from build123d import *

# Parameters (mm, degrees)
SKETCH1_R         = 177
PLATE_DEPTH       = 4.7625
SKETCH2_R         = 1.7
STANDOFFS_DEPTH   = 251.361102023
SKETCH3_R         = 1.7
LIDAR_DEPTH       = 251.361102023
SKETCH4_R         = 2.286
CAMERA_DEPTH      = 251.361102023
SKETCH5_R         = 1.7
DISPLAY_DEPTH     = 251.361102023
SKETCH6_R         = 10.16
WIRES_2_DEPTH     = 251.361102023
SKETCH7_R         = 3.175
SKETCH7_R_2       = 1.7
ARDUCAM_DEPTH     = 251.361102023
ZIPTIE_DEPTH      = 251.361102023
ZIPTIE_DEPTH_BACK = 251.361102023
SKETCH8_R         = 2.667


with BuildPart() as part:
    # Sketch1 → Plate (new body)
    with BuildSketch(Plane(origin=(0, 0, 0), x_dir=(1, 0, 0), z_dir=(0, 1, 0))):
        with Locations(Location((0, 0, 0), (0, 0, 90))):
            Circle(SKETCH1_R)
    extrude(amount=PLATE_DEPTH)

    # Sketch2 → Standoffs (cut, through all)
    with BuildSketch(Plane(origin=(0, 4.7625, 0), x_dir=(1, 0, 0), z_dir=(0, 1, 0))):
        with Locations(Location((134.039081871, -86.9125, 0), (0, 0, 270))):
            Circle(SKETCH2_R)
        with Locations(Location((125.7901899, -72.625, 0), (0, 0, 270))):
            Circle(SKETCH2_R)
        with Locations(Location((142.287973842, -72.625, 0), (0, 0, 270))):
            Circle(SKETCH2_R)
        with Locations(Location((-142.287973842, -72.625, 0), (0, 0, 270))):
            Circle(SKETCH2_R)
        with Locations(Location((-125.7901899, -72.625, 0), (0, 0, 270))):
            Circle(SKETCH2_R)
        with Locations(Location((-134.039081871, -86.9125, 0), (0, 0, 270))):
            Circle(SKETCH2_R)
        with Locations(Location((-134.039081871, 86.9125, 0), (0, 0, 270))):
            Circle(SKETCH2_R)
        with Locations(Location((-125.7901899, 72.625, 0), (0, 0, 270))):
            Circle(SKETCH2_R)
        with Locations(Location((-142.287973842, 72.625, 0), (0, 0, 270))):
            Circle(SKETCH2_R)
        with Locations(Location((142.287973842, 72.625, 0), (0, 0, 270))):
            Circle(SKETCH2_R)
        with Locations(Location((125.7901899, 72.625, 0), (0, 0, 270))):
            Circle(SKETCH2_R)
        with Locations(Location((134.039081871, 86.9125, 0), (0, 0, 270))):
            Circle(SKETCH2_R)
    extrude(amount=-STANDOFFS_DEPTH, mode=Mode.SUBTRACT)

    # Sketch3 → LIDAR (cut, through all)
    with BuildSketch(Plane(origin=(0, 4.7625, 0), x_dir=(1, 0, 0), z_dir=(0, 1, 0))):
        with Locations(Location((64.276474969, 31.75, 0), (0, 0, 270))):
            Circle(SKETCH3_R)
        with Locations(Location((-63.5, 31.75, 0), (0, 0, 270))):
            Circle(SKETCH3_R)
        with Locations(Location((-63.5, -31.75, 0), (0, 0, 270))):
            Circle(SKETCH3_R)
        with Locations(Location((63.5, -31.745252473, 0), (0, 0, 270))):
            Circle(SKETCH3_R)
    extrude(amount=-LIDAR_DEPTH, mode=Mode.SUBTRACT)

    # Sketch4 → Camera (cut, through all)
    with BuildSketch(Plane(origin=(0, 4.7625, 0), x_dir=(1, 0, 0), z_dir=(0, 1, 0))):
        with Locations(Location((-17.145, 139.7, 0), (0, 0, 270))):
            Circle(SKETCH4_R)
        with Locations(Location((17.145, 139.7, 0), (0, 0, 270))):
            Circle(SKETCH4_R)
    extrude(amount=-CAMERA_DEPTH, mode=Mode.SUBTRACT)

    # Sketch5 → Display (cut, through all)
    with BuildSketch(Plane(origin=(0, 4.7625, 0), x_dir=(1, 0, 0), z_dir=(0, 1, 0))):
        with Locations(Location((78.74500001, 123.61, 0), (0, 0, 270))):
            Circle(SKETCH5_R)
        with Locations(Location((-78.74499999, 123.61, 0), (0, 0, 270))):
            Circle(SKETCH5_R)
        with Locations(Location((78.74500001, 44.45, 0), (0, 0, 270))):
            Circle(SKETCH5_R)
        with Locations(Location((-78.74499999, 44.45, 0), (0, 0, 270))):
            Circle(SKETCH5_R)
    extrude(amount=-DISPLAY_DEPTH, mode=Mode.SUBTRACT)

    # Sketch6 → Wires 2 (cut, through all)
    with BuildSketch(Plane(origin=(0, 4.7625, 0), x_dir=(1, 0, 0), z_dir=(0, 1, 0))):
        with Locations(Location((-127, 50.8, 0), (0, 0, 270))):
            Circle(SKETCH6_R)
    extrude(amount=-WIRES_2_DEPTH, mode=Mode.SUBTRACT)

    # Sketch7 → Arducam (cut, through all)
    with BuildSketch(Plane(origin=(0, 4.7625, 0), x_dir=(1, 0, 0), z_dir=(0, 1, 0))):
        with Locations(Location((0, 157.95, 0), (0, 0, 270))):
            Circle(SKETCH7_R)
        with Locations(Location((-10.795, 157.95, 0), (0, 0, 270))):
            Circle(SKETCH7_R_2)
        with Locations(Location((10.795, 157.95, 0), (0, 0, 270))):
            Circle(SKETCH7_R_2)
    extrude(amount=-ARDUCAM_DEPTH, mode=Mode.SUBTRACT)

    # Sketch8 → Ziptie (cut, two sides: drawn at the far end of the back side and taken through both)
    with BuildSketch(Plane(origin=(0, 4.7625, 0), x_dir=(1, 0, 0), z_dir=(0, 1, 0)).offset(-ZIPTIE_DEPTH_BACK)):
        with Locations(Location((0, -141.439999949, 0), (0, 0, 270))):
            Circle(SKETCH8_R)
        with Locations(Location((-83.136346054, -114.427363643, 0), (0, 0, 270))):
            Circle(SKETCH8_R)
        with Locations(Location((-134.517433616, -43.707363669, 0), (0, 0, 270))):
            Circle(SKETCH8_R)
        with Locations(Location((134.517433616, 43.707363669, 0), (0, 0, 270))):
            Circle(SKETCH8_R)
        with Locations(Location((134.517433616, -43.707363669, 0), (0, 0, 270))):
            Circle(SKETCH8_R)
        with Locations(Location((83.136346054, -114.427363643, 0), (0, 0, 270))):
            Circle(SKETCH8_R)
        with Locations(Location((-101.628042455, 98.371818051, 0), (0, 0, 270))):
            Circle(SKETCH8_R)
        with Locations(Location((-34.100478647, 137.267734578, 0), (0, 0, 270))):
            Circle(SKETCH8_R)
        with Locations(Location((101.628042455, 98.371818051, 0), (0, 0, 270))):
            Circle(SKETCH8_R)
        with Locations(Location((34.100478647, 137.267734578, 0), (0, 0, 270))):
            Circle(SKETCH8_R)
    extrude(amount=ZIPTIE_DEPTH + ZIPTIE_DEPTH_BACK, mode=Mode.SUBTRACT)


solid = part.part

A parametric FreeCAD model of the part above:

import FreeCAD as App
import Part
import Sketcher
Q = App.Units.Quantity

doc = App.newDocument("Part")
body = doc.addObject("PartDesign::Body", "Body")

# Sketch on XZ plane
sketch1 = doc.addObject("Sketcher::SketchObject", "Sketch")
body.addObject(sketch1)
sketch1.AttachmentSupport = (doc.XZ_Plane, [""])
sketch1.MapMode = "FlatFace"
sketch1.addGeometry(Part.Circle(App.Vector(0, 0, 0), App.Vector(0, 0, 1), 177), False)
sketch1.addConstraint([
    Sketcher.Constraint("Coincident", 0, 3, -1, 1),
    Sketcher.Constraint("Diameter", 0, 354.0),
])
pad1 = doc.addObject("PartDesign::Pad", "Pad")
body.addObject(pad1)
pad1.Profile = sketch1
pad1.Length = Q("0.1875 in")
pad1.Reversed = True

# Sketch on XZ plane
sketch2 = doc.addObject("Sketcher::SketchObject", "Sketch001")
body.addObject(sketch2)
sketch2.AttachmentSupport = (doc.XZ_Plane, [""])
sketch2.MapMode = "FlatFace"
sketch2.AttachmentOffset = App.Placement(App.Vector(0, 0, -0.1875 * 25.4), App.Rotation())
sketch2.addGeometry([
    Part.Circle(App.Vector(134, 86.9, 0), App.Vector(0, 0, 1), 1.7),  # 0
    Part.Circle(App.Vector(125.8, 72.6, 0), App.Vector(0, 0, 1), 1.7),  # 1
    Part.Circle(App.Vector(142.3, 72.6, 0), App.Vector(0, 0, 1), 1.7),  # 2
    Part.Circle(App.Vector(-142.3, 72.6, 0), App.Vector(0, 0, 1), 1.7),  # 3
    Part.Circle(App.Vector(-125.8, 72.6, 0), App.Vector(0, 0, 1), 1.7),  # 4
    Part.Circle(App.Vector(-134, 86.9, 0), App.Vector(0, 0, 1), 1.7),  # 5
    Part.Circle(App.Vector(-134, -86.9, 0), App.Vector(0, 0, 1), 1.7),  # 6
    Part.Circle(App.Vector(-125.8, -72.6, 0), App.Vector(0, 0, 1), 1.7),  # 7
    Part.Circle(App.Vector(-142.3, -72.6, 0), App.Vector(0, 0, 1), 1.7),  # 8
    Part.Circle(App.Vector(142.3, -72.6, 0), App.Vector(0, 0, 1), 1.7),  # 9
    Part.Circle(App.Vector(125.8, -72.6, 0), App.Vector(0, 0, 1), 1.7),  # 10
    Part.Circle(App.Vector(134, -86.9, 0), App.Vector(0, 0, 1), 1.7),  # 11
], False)
sketch2.addConstraint([
    Sketcher.Constraint("Equal", 0, 1),
    Sketcher.Constraint("Equal", 1, 2),
    Sketcher.Constraint("Equal", 2, 3),
    Sketcher.Constraint("Equal", 3, 4),
    Sketcher.Constraint("Equal", 4, 5),
    Sketcher.Constraint("Equal", 5, 6),
    Sketcher.Constraint("Equal", 6, 7),
    Sketcher.Constraint("Equal", 7, 8),
    Sketcher.Constraint("Equal", 8, 9),
    Sketcher.Constraint("Equal", 9, 10),
    Sketcher.Constraint("Equal", 10, 11),
    Sketcher.Constraint("Symmetric", 0, 3, 6, 3, -1, 1),
    Sketcher.Constraint("Symmetric", 1, 3, 7, 3, -1, 1),
    Sketcher.Constraint("Symmetric", 2, 3, 8, 3, -1, 1),
    Sketcher.Constraint("Symmetric", 3, 3, 9, 3, -1, 1),
    Sketcher.Constraint("Symmetric", 4, 3, 10, 3, -1, 1),
    Sketcher.Constraint("Symmetric", 5, 3, 11, 3, -1, 1),
    Sketcher.Constraint("Symmetric", 2, 3, 3, 3, -2),
    Sketcher.Constraint("Symmetric", 1, 3, 4, 3, -2),
    Sketcher.Constraint("Symmetric", 0, 3, 5, 3, -2),
    Sketcher.Constraint("Horizontal", 1, 3, 2, 3),
    Sketcher.Constraint("Diameter", 0, 3.4),
    Sketcher.Constraint("DistanceY", 1, 3, 0, 3, Q("0.5625 in")),
    Sketcher.Constraint("DistanceY", -1, 1, 0, 3, 86.9125),
    Sketcher.Constraint("DistanceX", -1, 1, 0, 3, 134.039082),
    Sketcher.Constraint("DistanceX", -1, 1, 1, 3, 125.79019),
    Sketcher.Constraint("DistanceX", 0, 3, 2, 3, 8.248892),
])
pocket1 = doc.addObject("PartDesign::Pocket", "Pocket")
body.addObject(pocket1)
pocket1.Profile = sketch2
pocket1.Type = "ThroughAll"
pocket1.Reversed = True

# Sketch on XZ plane
sketch3 = doc.addObject("Sketcher::SketchObject", "Sketch002")
body.addObject(sketch3)
sketch3.AttachmentSupport = (doc.XZ_Plane, [""])
sketch3.MapMode = "FlatFace"
sketch3.AttachmentOffset = App.Placement(App.Vector(0, 0, -0.1875 * 25.4), App.Rotation())
sketch3.addGeometry([
    Part.Circle(App.Vector(64.3, -31.8, 0), App.Vector(0, 0, 1), 1.7),
    Part.Circle(App.Vector(-63.5, -31.8, 0), App.Vector(0, 0, 1), 1.7),
    Part.Circle(App.Vector(-63.5, 31.8, 0), App.Vector(0, 0, 1), 1.7),
    Part.Circle(App.Vector(63.5, 31.7, 0), App.Vector(0, 0, 1), 1.7),
], False)
sketch3.addConstraint([
    Sketcher.Constraint("Equal", 0, 1),
    Sketcher.Constraint("Equal", 1, 2),
    Sketcher.Constraint("Equal", 2, 3),
    Sketcher.Constraint("Symmetric", 1, 3, 2, 3, -1),
    Sketcher.Constraint("Horizontal", 0, 3, 1, 3),
    Sketcher.Constraint("DistanceX", 2, 3, 3, 3, Q("5 in")),
    Sketcher.Constraint("DistanceX", 1, 3, -1, 1, Q("2.5 in")),
    Sketcher.Constraint("DistanceY", 1, 3, 2, 3, Q("2.5 in")),
    Sketcher.Constraint("Diameter", 0, 3.4),
    Sketcher.Constraint("DistanceX", -1, 1, 0, 3, 64.276475),
    Sketcher.Constraint("DistanceY", -1, 1, 3, 3, 31.745252),
])
pocket2 = doc.addObject("PartDesign::Pocket", "Pocket001")
body.addObject(pocket2)
pocket2.Profile = sketch3
pocket2.Type = "ThroughAll"
pocket2.Reversed = True

# Sketch on XZ plane
sketch4 = doc.addObject("Sketcher::SketchObject", "Sketch003")
body.addObject(sketch4)
sketch4.AttachmentSupport = (doc.XZ_Plane, [""])
sketch4.MapMode = "FlatFace"
sketch4.AttachmentOffset = App.Placement(App.Vector(0, 0, -0.1875 * 25.4), App.Rotation())
sketch4.addGeometry([
    Part.Circle(App.Vector(-17.1, -139.7, 0), App.Vector(0, 0, 1), 2.3),
    Part.Circle(App.Vector(17.1, -139.7, 0), App.Vector(0, 0, 1), 2.3),
], False)
sketch4.addConstraint([
    Sketcher.Constraint("Equal", 0, 1),
    Sketcher.Constraint("Symmetric", 0, 3, 1, 3, -2),
    Sketcher.Constraint("Diameter", 0, Q("0.18 in")),
    Sketcher.Constraint("DistanceY", 0, 3, -1, 1, Q("5.5 in")),
    Sketcher.Constraint("DistanceX", 0, 3, 1, 3, Q("1.35 in")),
])
pocket3 = doc.addObject("PartDesign::Pocket", "Pocket002")
body.addObject(pocket3)
pocket3.Profile = sketch4
pocket3.Type = "ThroughAll"
pocket3.Reversed = True

# Sketch on XZ plane
sketch5 = doc.addObject("Sketcher::SketchObject", "Sketch004")
body.addObject(sketch5)
sketch5.AttachmentSupport = (doc.XZ_Plane, [""])
sketch5.MapMode = "FlatFace"
sketch5.AttachmentOffset = App.Placement(App.Vector(0, 0, -0.1875 * 25.4), App.Rotation())
sketch5.addGeometry([
    Part.Circle(App.Vector(78.7, -123.6, 0), App.Vector(0, 0, 1), 1.7),
    Part.Circle(App.Vector(-78.7, -123.6, 0), App.Vector(0, 0, 1), 1.7),
    Part.Circle(App.Vector(78.7, -44.5, 0), App.Vector(0, 0, 1), 1.7),
    Part.Circle(App.Vector(-78.7, -44.5, 0), App.Vector(0, 0, 1), 1.7),
], False)
sketch5.addConstraint([
    Sketcher.Constraint("Equal", 0, 1),
    Sketcher.Constraint("Equal", 1, 2),
    Sketcher.Constraint("Equal", 2, 3),
    Sketcher.Constraint("Symmetric", 0, 3, 1, 3, -2),
    Sketcher.Constraint("Symmetric", 2, 3, 3, 3, -2),
    Sketcher.Constraint("Vertical", 0, 3, 2, 3),
    Sketcher.Constraint("Diameter", 0, 3.4),
    Sketcher.Constraint("DistanceY", 2, 3, -1, 1, Q("1.75 in")),
    Sketcher.Constraint("DistanceX", -1, 1, 0, 3, 78.745),
    Sketcher.Constraint("DistanceY", 0, 3, -1, 1, 123.61),
])
pocket4 = doc.addObject("PartDesign::Pocket", "Pocket003")
body.addObject(pocket4)
pocket4.Profile = sketch5
pocket4.Type = "ThroughAll"
pocket4.Reversed = True

# Sketch on XZ plane
sketch6 = doc.addObject("Sketcher::SketchObject", "Sketch005")
body.addObject(sketch6)
sketch6.AttachmentSupport = (doc.XZ_Plane, [""])
sketch6.MapMode = "FlatFace"
sketch6.AttachmentOffset = App.Placement(App.Vector(0, 0, -0.1875 * 25.4), App.Rotation())
sketch6.addGeometry(Part.Circle(App.Vector(-127, -51, 0), App.Vector(0, 0, 1), 10), False)
sketch6.addConstraint([
    Sketcher.Constraint("Diameter", 0, Q("0.8 in")),
    Sketcher.Constraint("DistanceX", 0, 3, -1, 1, Q("5 in")),
    Sketcher.Constraint("DistanceY", 0, 3, -1, 1, Q("2 in")),
])
pocket5 = doc.addObject("PartDesign::Pocket", "Pocket004")
body.addObject(pocket5)
pocket5.Profile = sketch6
pocket5.Type = "ThroughAll"
pocket5.Reversed = True

# Sketch on XZ plane
sketch7 = doc.addObject("Sketcher::SketchObject", "Sketch006")
body.addObject(sketch7)
sketch7.AttachmentSupport = (doc.XZ_Plane, [""])
sketch7.MapMode = "FlatFace"
sketch7.AttachmentOffset = App.Placement(App.Vector(0, 0, -0.1875 * 25.4), App.Rotation())
sketch7.addGeometry([
    Part.Circle(App.Vector(0, -157.9, 0), App.Vector(0, 0, 1), 3.2),
    Part.Circle(App.Vector(-10.8, -157.9, 0), App.Vector(0, 0, 1), 1.7),
    Part.Circle(App.Vector(10.8, -157.9, 0), App.Vector(0, 0, 1), 1.7),
], False)
sketch7.addConstraint([
    Sketcher.Constraint("Equal", 1, 2),
    Sketcher.Constraint("Symmetric", 1, 3, 2, 3, -2),
    Sketcher.Constraint("PointOnObject", 0, 3, -2),
    Sketcher.Constraint("Horizontal", 0, 3, 1, 3),
    Sketcher.Constraint("Diameter", 0, Q("0.25 in")),
    Sketcher.Constraint("Diameter", 1, 3.4),
    Sketcher.Constraint("DistanceX", 1, 3, 2, 3, Q("0.85 in")),
    Sketcher.Constraint("DistanceY", 0, 3, -1, 1, 157.95),
])
pocket6 = doc.addObject("PartDesign::Pocket", "Pocket005")
body.addObject(pocket6)
pocket6.Profile = sketch7
pocket6.Type = "ThroughAll"
pocket6.Reversed = True

# Sketch on XZ plane
sketch8 = doc.addObject("Sketcher::SketchObject", "Sketch007")
body.addObject(sketch8)
sketch8.AttachmentSupport = (doc.XZ_Plane, [""])
sketch8.MapMode = "FlatFace"
sketch8.AttachmentOffset = App.Placement(App.Vector(0, 0, -0.1875 * 25.4), App.Rotation())
sketch8.addGeometry([
    Part.Circle(App.Vector(0, 141.4, 0), App.Vector(0, 0, 1), 2.7),  # 0
    Part.Circle(App.Vector(-83.1, 114.4, 0), App.Vector(0, 0, 1), 2.7),  # 1
    Part.Circle(App.Vector(-134.5, 43.7, 0), App.Vector(0, 0, 1), 2.7),  # 2
    Part.Circle(App.Vector(134.5, -43.7, 0), App.Vector(0, 0, 1), 2.7),  # 3
    Part.Circle(App.Vector(134.5, 43.7, 0), App.Vector(0, 0, 1), 2.7),  # 4
    Part.Circle(App.Vector(83.1, 114.4, 0), App.Vector(0, 0, 1), 2.7),  # 5
    Part.Circle(App.Vector(-101.6, -98.4, 0), App.Vector(0, 0, 1), 2.7),  # 6
    Part.Circle(App.Vector(-34.1, -137.3, 0), App.Vector(0, 0, 1), 2.7),  # 7
    Part.Circle(App.Vector(101.6, -98.4, 0), App.Vector(0, 0, 1), 2.7),  # 8
    Part.Circle(App.Vector(34.1, -137.3, 0), App.Vector(0, 0, 1), 2.7),  # 9
], False)
sketch8.addConstraint([
    Sketcher.Constraint("Equal", 0, 1),
    Sketcher.Constraint("Equal", 1, 2),
    Sketcher.Constraint("Equal", 2, 3),
    Sketcher.Constraint("Equal", 3, 4),
    Sketcher.Constraint("Equal", 4, 5),
    Sketcher.Constraint("Equal", 5, 6),
    Sketcher.Constraint("Equal", 6, 7),
    Sketcher.Constraint("Equal", 7, 8),
    Sketcher.Constraint("Equal", 8, 9),
    Sketcher.Constraint("Symmetric", 2, 3, 3, 3, -1, 1),
    Sketcher.Constraint("Symmetric", 2, 3, 4, 3, -2),
    Sketcher.Constraint("Symmetric", 1, 3, 5, 3, -2),
    Sketcher.Constraint("Symmetric", 6, 3, 8, 3, -2),
    Sketcher.Constraint("Symmetric", 7, 3, 9, 3, -2),
    Sketcher.Constraint("PointOnObject", 0, 3, -2),
    Sketcher.Constraint("Diameter", 0, Q("0.21 in")),
    Sketcher.Constraint("DistanceY", -1, 1, 0, 3, 141.44),
    Sketcher.Constraint("DistanceY", 2, 3, 1, 3, 70.72),
    Sketcher.Constraint("DistanceY", 7, 3, 2, 3, 180.975098),
    Sketcher.Constraint("DistanceY", 6, 3, -1, 1, 98.371818),
    Sketcher.Constraint("DistanceX", 7, 3, -1, 1, 34.100479),
    Sketcher.Constraint("DistanceX", 1, 3, 3, 3, 217.65378),
    Sketcher.Constraint("DistanceX", 2, 3, 6, 3, 32.889391),
    Sketcher.Constraint("DistanceY", 6, 3, 2, 3, 142.079182),
    Sketcher.Constraint("DistanceX", 7, 3, 8, 3, 135.728521),
])
pocket7 = doc.addObject("PartDesign::Pocket", "Pocket006")
body.addObject(pocket7)
pocket7.Profile = sketch8
pocket7.Type = "ThroughAll"
pocket7.Midplane = True

doc.recompute()
